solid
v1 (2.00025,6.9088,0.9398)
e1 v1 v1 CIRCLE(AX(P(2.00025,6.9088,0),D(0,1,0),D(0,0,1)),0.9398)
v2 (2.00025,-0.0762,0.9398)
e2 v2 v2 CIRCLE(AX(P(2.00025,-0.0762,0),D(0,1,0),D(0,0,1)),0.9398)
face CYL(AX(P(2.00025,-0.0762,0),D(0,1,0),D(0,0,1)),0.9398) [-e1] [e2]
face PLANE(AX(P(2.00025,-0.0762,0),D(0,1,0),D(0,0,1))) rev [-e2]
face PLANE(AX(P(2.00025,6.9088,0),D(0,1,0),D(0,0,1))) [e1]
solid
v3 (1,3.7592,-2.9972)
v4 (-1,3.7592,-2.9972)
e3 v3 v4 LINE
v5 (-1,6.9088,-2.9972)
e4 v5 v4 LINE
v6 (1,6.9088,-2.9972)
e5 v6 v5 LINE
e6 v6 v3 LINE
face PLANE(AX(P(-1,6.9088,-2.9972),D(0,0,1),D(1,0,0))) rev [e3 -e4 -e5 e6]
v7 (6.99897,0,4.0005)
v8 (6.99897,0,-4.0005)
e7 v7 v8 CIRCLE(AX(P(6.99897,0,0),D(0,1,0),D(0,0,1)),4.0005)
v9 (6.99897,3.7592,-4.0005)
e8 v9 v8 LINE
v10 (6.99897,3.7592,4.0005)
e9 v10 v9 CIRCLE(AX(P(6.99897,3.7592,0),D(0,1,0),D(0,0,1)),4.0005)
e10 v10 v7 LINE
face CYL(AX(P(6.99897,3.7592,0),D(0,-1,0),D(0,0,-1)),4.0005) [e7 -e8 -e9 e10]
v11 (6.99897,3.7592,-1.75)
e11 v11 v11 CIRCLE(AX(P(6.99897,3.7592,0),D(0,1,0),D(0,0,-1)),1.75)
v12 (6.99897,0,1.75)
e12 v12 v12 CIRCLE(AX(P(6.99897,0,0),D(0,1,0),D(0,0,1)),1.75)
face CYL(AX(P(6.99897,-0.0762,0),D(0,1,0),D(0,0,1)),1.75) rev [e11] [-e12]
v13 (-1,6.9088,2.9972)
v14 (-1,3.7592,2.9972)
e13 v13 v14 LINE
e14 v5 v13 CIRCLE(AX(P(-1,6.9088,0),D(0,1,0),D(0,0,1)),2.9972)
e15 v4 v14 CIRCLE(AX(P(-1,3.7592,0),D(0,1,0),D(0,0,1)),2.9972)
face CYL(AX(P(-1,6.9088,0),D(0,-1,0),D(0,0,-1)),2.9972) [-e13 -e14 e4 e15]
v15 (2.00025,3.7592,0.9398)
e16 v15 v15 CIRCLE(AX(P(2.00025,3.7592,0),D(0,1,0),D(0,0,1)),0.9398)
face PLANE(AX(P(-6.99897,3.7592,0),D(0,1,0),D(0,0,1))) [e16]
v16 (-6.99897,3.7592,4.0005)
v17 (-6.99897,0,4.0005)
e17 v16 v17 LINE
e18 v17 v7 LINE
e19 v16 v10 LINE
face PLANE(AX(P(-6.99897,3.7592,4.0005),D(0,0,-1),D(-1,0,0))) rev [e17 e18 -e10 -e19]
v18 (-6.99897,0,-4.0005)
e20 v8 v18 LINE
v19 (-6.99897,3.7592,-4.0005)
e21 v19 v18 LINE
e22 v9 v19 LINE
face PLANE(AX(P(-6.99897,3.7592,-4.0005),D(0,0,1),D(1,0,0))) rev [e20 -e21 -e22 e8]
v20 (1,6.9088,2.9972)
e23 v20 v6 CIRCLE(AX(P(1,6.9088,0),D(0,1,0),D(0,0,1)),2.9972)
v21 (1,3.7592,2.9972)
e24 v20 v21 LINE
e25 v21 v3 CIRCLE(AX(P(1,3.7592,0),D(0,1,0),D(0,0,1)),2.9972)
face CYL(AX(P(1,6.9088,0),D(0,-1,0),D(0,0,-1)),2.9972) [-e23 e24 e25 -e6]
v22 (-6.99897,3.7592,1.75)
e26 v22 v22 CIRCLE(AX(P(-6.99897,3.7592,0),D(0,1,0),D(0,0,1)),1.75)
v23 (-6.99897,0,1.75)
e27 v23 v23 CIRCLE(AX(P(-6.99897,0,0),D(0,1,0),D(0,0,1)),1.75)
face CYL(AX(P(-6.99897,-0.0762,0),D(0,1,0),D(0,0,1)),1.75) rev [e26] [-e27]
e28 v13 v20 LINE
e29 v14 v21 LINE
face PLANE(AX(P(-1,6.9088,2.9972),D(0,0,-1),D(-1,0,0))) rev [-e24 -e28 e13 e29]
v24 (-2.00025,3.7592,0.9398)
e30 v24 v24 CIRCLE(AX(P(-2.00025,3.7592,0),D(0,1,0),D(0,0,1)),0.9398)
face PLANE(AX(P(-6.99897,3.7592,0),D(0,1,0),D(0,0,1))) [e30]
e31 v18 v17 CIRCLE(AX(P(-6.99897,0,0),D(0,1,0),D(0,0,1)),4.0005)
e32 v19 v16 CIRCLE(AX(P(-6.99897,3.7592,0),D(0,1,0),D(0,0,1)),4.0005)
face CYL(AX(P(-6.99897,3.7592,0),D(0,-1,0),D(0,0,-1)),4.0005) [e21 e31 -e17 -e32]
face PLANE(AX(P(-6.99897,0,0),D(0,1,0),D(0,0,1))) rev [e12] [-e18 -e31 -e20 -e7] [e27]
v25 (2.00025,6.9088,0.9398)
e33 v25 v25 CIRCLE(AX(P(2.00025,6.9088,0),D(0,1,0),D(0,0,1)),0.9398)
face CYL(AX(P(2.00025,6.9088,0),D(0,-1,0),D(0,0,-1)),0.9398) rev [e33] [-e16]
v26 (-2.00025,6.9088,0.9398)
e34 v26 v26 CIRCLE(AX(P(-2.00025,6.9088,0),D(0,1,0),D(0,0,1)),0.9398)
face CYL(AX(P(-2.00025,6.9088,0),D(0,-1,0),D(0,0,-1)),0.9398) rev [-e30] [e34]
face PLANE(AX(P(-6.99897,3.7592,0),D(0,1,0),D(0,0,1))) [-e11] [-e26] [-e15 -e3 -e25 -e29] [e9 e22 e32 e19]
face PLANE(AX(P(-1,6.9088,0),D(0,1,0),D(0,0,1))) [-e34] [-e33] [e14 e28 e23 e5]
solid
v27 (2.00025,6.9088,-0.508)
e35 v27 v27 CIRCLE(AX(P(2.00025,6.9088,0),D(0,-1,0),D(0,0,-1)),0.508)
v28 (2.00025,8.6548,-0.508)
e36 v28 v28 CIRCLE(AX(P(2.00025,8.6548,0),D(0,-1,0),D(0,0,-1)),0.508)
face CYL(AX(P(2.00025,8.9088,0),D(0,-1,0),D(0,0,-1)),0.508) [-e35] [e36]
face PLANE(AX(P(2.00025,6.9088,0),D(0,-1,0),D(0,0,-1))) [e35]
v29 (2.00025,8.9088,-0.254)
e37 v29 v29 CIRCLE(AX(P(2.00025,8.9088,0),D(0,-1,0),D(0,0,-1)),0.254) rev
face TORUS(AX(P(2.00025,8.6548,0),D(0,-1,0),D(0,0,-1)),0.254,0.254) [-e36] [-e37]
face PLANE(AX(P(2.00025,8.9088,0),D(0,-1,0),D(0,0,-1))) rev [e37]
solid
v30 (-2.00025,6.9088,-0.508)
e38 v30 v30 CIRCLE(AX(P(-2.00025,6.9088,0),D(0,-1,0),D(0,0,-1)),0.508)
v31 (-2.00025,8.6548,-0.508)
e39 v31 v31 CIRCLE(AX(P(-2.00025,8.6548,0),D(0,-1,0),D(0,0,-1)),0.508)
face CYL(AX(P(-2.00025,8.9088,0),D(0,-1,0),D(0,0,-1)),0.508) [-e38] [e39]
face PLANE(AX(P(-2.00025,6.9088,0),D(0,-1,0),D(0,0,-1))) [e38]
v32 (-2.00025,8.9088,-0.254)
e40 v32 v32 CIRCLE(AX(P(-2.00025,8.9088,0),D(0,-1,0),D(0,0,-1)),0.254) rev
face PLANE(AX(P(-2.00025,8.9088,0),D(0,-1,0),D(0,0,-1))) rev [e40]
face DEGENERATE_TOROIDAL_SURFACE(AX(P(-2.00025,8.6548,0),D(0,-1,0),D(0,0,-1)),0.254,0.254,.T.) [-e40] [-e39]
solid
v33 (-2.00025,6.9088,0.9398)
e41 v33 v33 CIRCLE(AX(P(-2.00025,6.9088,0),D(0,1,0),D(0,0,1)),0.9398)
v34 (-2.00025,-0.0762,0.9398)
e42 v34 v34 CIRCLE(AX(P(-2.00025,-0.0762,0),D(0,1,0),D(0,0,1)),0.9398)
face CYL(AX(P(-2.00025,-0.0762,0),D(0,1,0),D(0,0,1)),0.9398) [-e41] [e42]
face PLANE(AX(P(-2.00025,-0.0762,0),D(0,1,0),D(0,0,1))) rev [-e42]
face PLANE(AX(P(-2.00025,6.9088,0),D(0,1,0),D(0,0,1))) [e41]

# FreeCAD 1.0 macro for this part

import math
import FreeCAD as App
import Part
import Sketcher
Q = App.Units.Quantity


def edges_at(feature, points):
    """Names of the edges that pass closest to the given points."""
    edges = feature.Shape.Edges
    near = lambda p: min(range(len(edges)), key=lambda i: edges[i].distToShape(Part.Vertex(*p))[0])
    return sorted({f"Edge{near(p) + 1}" for p in points})

doc = App.newDocument("Part")
body = doc.addObject("PartDesign::Body", "Body")

# Sketch on XZ plane
sketch1 = body.newObject("Sketcher::SketchObject", "Sketch")
sketch1.AttachmentSupport = (doc.getObject("XZ_Plane"), [""])
sketch1.MapMode = "FlatFace"
sketch1.addGeometry([
    Part.LineSegment(App.Vector(7, -4, 0), App.Vector(-7, -4, 0)),
    Part.ArcOfCircle(Part.Circle(App.Vector(-7, 0, 0), App.Vector(0, 0, 1), 4), math.radians(90), math.radians(270)),
    Part.LineSegment(App.Vector(-7, 4, 0), App.Vector(7, 4, 0)),
    Part.ArcOfCircle(Part.Circle(App.Vector(7, 0, 0), App.Vector(0, 0, 1), 4), math.radians(-90), math.radians(90)),
], False)
sketch1.addConstraint([
    Sketcher.Constraint("Tangent", 0, 2, 1, 2),
    Sketcher.Constraint("Tangent", 1, 1, 2, 1),
    Sketcher.Constraint("Tangent", 2, 2, 3, 2),
    Sketcher.Constraint("Tangent", 3, 1, 0, 1),
    Sketcher.Constraint("Horizontal", 0),
    Sketcher.Constraint("Horizontal", 2),
    Sketcher.Constraint("Symmetric", 1, 3, 3, 3, -1, 1),
    Sketcher.Constraint("Radius", 1, Q("0.1575 in")),
    Sketcher.Constraint("DistanceX", 0, 2, 0, 1, Q("0.5511 in")),
])
pad1 = body.newObject("PartDesign::Pad", "Pad")
pad1.Profile = sketch1
pad1.Length = Q("0.148 in")
pad1.Reversed = True

# Sketch on XZ plane
sketch2 = body.newObject("Sketcher::SketchObject", "Sketch001")
sketch2.AttachmentSupport = (doc.getObject("XZ_Plane"), [""])
sketch2.MapMode = "FlatFace"
sketch2.AttachmentOffset = App.Placement(App.Vector(0, 0, -0.148 * 25.4), App.Rotation())
sketch2.addGeometry([
    Part.LineSegment(App.Vector(1, -3, 0), App.Vector(-1, -3, 0)),  # 0
    Part.ArcOfCircle(Part.Circle(App.Vector(-1, 0, 0), App.Vector(0, 0, 1), 3), math.radians(90), math.radians(270)),  # 1
    Part.LineSegment(App.Vector(-1, 3, 0), App.Vector(1, 3, 0)),  # 2
    Part.ArcOfCircle(Part.Circle(App.Vector(1, 0, 0), App.Vector(0, 0, 1), 3), math.radians(-90), math.radians(90)),  # 3
    Part.Circle(App.Vector(2, 0, 0), App.Vector(0, 0, 1), 0.9),  # 4
    Part.Circle(App.Vector(-2, 0, 0), App.Vector(0, 0, 1), 0.9),  # 5
], False)
sketch2.addConstraint([
    Sketcher.Constraint("Tangent", 0, 2, 1, 2),
    Sketcher.Constraint("Tangent", 1, 1, 2, 1),
    Sketcher.Constraint("Tangent", 2, 2, 3, 2),
    Sketcher.Constraint("Tangent", 3, 1, 0, 1),
    Sketcher.Constraint("Horizontal", 0),
    Sketcher.Constraint("Horizontal", 2),
    Sketcher.Constraint("Equal", 4, 5),
    Sketcher.Constraint("Symmetric", 1, 3, 3, 3, -1, 1),
    Sketcher.Constraint("Symmetric", 4, 3, 5, 3, -1, 1),
    Sketcher.Constraint("PointOnObject", 4, 3, -1),
    Sketcher.Constraint("Diameter", 4, Q("0.074 in")),
    Sketcher.Constraint("Radius", 1, Q("0.118 in")),
    Sketcher.Constraint("DistanceX", 0, 2, 0, 1, 2.0),
    Sketcher.Constraint("DistanceX", 5, 3, 4, 3, Q("0.1575 in")),
])
pad2 = body.newObject("PartDesign::Pad", "Pad001")
pad2.Profile = sketch2
pad2.Length = Q("0.124 in")
pad2.Reversed = True

# Sketch on XZ plane
sketch3 = body.newObject("Sketcher::SketchObject", "Sketch002")
sketch3.AttachmentSupport = (doc.getObject("XZ_Plane"), [""])
sketch3.MapMode = "FlatFace"
sketch3.AttachmentOffset = App.Placement(App.Vector(0, 0, -0.148 * 25.4), App.Rotation())
sketch3.addGeometry([
    Part.Circle(App.Vector(-7, 0, 0), App.Vector(0, 0, 1), 1.8),
    Part.Circle(App.Vector(7, 0, 0), App.Vector(0, 0, 1), 1.8),
], False)
sketch3.addConstraint([
    Sketcher.Constraint("Equal", 0, 1),
    Sketcher.Constraint("Symmetric", 0, 3, 1, 3, -1, 1),
    Sketcher.Constraint("PointOnObject", 0, 3, -1),
    Sketcher.Constraint("Diameter", 0, 3.5),
    Sketcher.Constraint("DistanceX", 0, 3, 1, 3, Q("0.5511 in")),
])
pocket1 = body.newObject("PartDesign::Pocket", "Pocket")
pocket1.Profile = sketch3
pocket1.Type = "ThroughAll"
pocket1.Reversed = True
body2 = doc.addObject("PartDesign::Body", "Body001")

# Sketch on XZ plane
sketch4 = body2.newObject("Sketcher::SketchObject", "Sketch003")
sketch4.AttachmentSupport = (doc.getObject("XZ_Plane001"), [""])
sketch4.MapMode = "FlatFace"
sketch4.AttachmentOffset = App.Placement(App.Vector(0, 0, -0.272 * 25.4), App.Rotation())
sketch4.addGeometry(Part.Circle(App.Vector(-2, 0, 0), App.Vector(0, 0, 1), 0.9), False)
sketch4.addConstraint([
    Sketcher.Constraint("PointOnObject", 0, 3, -1),
    Sketcher.Constraint("Diameter", 0, Q("0.074 in")),
    Sketcher.Constraint("DistanceX", 0, 3, -1, 1, 2.00025),
])
pad3 = body2.newObject("PartDesign::Pad", "Pad002")
pad3.Profile = sketch4
pad3.Length = Q("0.275 in")
body3 = doc.addObject("PartDesign::Body", "Body002")

# Sketch on XZ plane
sketch5 = body3.newObject("Sketcher::SketchObject", "Sketch004")
sketch5.AttachmentSupport = (doc.getObject("XZ_Plane002"), [""])
sketch5.MapMode = "FlatFace"
sketch5.AttachmentOffset = App.Placement(App.Vector(0, 0, -0.272 * 25.4), App.Rotation())
sketch5.addGeometry(Part.Circle(App.Vector(2, 0, 0), App.Vector(0, 0, 1), 0.9), False)
sketch5.addConstraint([
    Sketcher.Constraint("PointOnObject", 0, 3, -1),
    Sketcher.Constraint("Diameter", 0, Q("0.074 in")),
    Sketcher.Constraint("DistanceX", -1, 1, 0, 3, 2.00025),
])
pad4 = body3.newObject("PartDesign::Pad", "Pad003")
pad4.Profile = sketch5
pad4.Length = Q("0.275 in")
body4 = doc.addObject("PartDesign::Body", "Body003")

# Sketch on XZ plane
sketch6 = body4.newObject("Sketcher::SketchObject", "Sketch005")
sketch6.AttachmentSupport = (doc.getObject("XZ_Plane003"), [""])
sketch6.MapMode = "FlatFace"
sketch6.AttachmentOffset = App.Placement(App.Vector(0, 0, -0.272 * 25.4), App.Rotation())
sketch6.addGeometry(Part.Circle(App.Vector(-2, 0, 0), App.Vector(0, 0, 1), 0.5), False)
sketch6.addConstraint([
    Sketcher.Constraint("PointOnObject", 0, 3, -1),
    Sketcher.Constraint("Diameter", 0, Q("0.04 in")),
    Sketcher.Constraint("DistanceX", 0, 3, -1, 1, 2.00025),
])
pad5 = body4.newObject("PartDesign::Pad", "Pad004")
pad5.Profile = sketch6
pad5.Length = 2
pad5.Reversed = True
doc.recompute()

fillet = body4.newObject("PartDesign::Fillet", "Fillet")
fillet.Base = (pad5, edges_at(pad5, [(-2.508, 8.909, 0)]))
fillet.Radius = Q("0.01 in")
body5 = doc.addObject("PartDesign::Body", "Body004")

# Sketch on XZ plane
sketch7 = body5.newObject("Sketcher::SketchObject", "Sketch006")
sketch7.AttachmentSupport = (doc.getObject("XZ_Plane004"), [""])
sketch7.MapMode = "FlatFace"
sketch7.AttachmentOffset = App.Placement(App.Vector(0, 0, -0.272 * 25.4), App.Rotation())
sketch7.addGeometry(Part.Circle(App.Vector(2, 0, 0), App.Vector(0, 0, 1), 0.5), False)
sketch7.addConstraint([
    Sketcher.Constraint("PointOnObject", 0, 3, -1),
    Sketcher.Constraint("Diameter", 0, Q("0.04 in")),
    Sketcher.Constraint("DistanceX", -1, 1, 0, 3, 2.00025),
])
pad6 = body5.newObject("PartDesign::Pad", "Pad005")
pad6.Profile = sketch7
pad6.Length = 2
pad6.Reversed = True
doc.recompute()

fillet2 = body5.newObject("PartDesign::Fillet", "Fillet001")
fillet2.Base = (pad6, edges_at(pad6, [(1.492, 8.909, 0)]))
fillet2.Radius = Q("0.01 in")

doc.recompute()
